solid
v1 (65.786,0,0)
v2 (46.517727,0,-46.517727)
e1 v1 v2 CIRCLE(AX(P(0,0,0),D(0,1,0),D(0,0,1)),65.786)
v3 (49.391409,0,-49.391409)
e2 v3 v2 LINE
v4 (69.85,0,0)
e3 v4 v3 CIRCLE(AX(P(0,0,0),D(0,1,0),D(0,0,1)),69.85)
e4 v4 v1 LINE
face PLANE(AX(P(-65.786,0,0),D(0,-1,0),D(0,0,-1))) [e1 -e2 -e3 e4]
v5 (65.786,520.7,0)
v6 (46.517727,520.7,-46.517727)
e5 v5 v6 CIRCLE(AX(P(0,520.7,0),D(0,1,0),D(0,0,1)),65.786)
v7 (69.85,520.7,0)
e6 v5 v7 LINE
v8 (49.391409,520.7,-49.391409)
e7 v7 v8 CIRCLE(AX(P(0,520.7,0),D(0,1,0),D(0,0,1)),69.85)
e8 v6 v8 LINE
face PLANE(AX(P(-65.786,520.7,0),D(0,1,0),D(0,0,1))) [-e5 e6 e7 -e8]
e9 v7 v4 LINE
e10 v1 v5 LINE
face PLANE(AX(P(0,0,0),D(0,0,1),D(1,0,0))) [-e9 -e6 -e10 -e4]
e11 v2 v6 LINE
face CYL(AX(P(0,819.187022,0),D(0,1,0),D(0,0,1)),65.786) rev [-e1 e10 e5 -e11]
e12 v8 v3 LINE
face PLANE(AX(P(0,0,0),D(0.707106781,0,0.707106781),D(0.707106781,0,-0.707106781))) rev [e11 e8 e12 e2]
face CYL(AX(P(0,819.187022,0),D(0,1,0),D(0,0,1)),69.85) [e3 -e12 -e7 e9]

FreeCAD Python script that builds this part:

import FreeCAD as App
import Part
import Sketcher
Q = App.Units.Quantity

doc = App.newDocument("Part")
body = doc.addObject("PartDesign::Body", "Body")

# Sketch on XY plane
sketch1 = doc.addObject("Sketcher::SketchObject", "Sketch")
body.addObject(sketch1)
sketch1.AttachmentSupport = (doc.XY_Plane, [""])
sketch1.MapMode = "FlatFace"
sketch1.addGeometry([
    Part.LineSegment(App.Vector(-69.85, 520.7, 0), App.Vector(-69.85, 0, 0)),
    Part.LineSegment(App.Vector(-69.85, 0, 0), App.Vector(-65.786, 0, 0)),
    Part.LineSegment(App.Vector(-65.786, 0, 0), App.Vector(-65.786, 520.7, 0)),
    Part.LineSegment(App.Vector(-65.786, 520.7, 0), App.Vector(-69.85, 520.7, 0)),
], False)
sketch1.addConstraint([
    Sketcher.Constraint("Coincident", 0, 2, 1, 1),
    Sketcher.Constraint("Coincident", 1, 2, 2, 1),
    Sketcher.Constraint("Coincident", 2, 2, 3, 1),
    Sketcher.Constraint("Coincident", 3, 2, 0, 1),
    Sketcher.Constraint("Vertical", 0),
    Sketcher.Constraint("Horizontal", 1),
    Sketcher.Constraint("Vertical", 2),
    Sketcher.Constraint("Horizontal", 3),
    Sketcher.Constraint("PointOnObject", 0, 2, -1),
    Sketcher.Constraint("DistanceY", 0, 2, 0, 1, Q("20.5 in")),
    Sketcher.Constraint("DistanceX", 1, 1, 1, 2, Q("0.16 in")),
    Sketcher.Constraint("DistanceX", 0, 2, -1, 1, Q("2.75 in")),
])
revolution = doc.addObject("PartDesign::Revolution", "Revolution")
body.addObject(revolution)
revolution.Profile = sketch1
revolution.ReferenceAxis = (sketch1, ["V_Axis"])
revolution.Angle = 360

# Sketch on XY plane
sketch2 = doc.addObject("Sketcher::SketchObject", "Sketch001")
body.addObject(sketch2)
sketch2.AttachmentSupport = (doc.XY_Plane, [""])
sketch2.MapMode = "FlatFace"
sketch2.addGeometry([
    Part.LineSegment(App.Vector(0, 562.818769, 0), App.Vector(0, -51.954323, 0)),
    Part.LineSegment(App.Vector(0, -51.954323, 0), App.Vector(133.284946, -51.954323, 0)),
    Part.LineSegment(App.Vector(133.284946, -51.954323, 0), App.Vector(133.284946, 562.818769, 0)),
    Part.LineSegment(App.Vector(133.284946, 562.818769, 0), App.Vector(0, 562.818769, 0)),
], False)
sketch2.addConstraint([
    Sketcher.Constraint("Coincident", 0, 2, 1, 1),
    Sketcher.Constraint("Coincident", 1, 2, 2, 1),
    Sketcher.Constraint("Coincident", 2, 2, 3, 1),
    Sketcher.Constraint("Coincident", 3, 2, 0, 1),
    Sketcher.Constraint("Vertical", 0),
    Sketcher.Constraint("Horizontal", 1),
    Sketcher.Constraint("Vertical", 2),
    Sketcher.Constraint("Horizontal", 3),
    Sketcher.Constraint("PointOnObject", 0, 2, -2),
    Sketcher.Constraint("DistanceX", 1, 1, 1, 2, 133.284946),
    Sketcher.Constraint("DistanceY", 0, 2, 0, 1, 614.773092),
    Sketcher.Constraint("DistanceY", -1, 1, 2, 2, 562.818769),
])
groove = doc.addObject("PartDesign::Groove", "Groove")
body.addObject(groove)
groove.Profile = sketch2
groove.ReferenceAxis = (sketch2, ["V_Axis"])
groove.Angle = 315
groove.Reversed = True

doc.recompute()
